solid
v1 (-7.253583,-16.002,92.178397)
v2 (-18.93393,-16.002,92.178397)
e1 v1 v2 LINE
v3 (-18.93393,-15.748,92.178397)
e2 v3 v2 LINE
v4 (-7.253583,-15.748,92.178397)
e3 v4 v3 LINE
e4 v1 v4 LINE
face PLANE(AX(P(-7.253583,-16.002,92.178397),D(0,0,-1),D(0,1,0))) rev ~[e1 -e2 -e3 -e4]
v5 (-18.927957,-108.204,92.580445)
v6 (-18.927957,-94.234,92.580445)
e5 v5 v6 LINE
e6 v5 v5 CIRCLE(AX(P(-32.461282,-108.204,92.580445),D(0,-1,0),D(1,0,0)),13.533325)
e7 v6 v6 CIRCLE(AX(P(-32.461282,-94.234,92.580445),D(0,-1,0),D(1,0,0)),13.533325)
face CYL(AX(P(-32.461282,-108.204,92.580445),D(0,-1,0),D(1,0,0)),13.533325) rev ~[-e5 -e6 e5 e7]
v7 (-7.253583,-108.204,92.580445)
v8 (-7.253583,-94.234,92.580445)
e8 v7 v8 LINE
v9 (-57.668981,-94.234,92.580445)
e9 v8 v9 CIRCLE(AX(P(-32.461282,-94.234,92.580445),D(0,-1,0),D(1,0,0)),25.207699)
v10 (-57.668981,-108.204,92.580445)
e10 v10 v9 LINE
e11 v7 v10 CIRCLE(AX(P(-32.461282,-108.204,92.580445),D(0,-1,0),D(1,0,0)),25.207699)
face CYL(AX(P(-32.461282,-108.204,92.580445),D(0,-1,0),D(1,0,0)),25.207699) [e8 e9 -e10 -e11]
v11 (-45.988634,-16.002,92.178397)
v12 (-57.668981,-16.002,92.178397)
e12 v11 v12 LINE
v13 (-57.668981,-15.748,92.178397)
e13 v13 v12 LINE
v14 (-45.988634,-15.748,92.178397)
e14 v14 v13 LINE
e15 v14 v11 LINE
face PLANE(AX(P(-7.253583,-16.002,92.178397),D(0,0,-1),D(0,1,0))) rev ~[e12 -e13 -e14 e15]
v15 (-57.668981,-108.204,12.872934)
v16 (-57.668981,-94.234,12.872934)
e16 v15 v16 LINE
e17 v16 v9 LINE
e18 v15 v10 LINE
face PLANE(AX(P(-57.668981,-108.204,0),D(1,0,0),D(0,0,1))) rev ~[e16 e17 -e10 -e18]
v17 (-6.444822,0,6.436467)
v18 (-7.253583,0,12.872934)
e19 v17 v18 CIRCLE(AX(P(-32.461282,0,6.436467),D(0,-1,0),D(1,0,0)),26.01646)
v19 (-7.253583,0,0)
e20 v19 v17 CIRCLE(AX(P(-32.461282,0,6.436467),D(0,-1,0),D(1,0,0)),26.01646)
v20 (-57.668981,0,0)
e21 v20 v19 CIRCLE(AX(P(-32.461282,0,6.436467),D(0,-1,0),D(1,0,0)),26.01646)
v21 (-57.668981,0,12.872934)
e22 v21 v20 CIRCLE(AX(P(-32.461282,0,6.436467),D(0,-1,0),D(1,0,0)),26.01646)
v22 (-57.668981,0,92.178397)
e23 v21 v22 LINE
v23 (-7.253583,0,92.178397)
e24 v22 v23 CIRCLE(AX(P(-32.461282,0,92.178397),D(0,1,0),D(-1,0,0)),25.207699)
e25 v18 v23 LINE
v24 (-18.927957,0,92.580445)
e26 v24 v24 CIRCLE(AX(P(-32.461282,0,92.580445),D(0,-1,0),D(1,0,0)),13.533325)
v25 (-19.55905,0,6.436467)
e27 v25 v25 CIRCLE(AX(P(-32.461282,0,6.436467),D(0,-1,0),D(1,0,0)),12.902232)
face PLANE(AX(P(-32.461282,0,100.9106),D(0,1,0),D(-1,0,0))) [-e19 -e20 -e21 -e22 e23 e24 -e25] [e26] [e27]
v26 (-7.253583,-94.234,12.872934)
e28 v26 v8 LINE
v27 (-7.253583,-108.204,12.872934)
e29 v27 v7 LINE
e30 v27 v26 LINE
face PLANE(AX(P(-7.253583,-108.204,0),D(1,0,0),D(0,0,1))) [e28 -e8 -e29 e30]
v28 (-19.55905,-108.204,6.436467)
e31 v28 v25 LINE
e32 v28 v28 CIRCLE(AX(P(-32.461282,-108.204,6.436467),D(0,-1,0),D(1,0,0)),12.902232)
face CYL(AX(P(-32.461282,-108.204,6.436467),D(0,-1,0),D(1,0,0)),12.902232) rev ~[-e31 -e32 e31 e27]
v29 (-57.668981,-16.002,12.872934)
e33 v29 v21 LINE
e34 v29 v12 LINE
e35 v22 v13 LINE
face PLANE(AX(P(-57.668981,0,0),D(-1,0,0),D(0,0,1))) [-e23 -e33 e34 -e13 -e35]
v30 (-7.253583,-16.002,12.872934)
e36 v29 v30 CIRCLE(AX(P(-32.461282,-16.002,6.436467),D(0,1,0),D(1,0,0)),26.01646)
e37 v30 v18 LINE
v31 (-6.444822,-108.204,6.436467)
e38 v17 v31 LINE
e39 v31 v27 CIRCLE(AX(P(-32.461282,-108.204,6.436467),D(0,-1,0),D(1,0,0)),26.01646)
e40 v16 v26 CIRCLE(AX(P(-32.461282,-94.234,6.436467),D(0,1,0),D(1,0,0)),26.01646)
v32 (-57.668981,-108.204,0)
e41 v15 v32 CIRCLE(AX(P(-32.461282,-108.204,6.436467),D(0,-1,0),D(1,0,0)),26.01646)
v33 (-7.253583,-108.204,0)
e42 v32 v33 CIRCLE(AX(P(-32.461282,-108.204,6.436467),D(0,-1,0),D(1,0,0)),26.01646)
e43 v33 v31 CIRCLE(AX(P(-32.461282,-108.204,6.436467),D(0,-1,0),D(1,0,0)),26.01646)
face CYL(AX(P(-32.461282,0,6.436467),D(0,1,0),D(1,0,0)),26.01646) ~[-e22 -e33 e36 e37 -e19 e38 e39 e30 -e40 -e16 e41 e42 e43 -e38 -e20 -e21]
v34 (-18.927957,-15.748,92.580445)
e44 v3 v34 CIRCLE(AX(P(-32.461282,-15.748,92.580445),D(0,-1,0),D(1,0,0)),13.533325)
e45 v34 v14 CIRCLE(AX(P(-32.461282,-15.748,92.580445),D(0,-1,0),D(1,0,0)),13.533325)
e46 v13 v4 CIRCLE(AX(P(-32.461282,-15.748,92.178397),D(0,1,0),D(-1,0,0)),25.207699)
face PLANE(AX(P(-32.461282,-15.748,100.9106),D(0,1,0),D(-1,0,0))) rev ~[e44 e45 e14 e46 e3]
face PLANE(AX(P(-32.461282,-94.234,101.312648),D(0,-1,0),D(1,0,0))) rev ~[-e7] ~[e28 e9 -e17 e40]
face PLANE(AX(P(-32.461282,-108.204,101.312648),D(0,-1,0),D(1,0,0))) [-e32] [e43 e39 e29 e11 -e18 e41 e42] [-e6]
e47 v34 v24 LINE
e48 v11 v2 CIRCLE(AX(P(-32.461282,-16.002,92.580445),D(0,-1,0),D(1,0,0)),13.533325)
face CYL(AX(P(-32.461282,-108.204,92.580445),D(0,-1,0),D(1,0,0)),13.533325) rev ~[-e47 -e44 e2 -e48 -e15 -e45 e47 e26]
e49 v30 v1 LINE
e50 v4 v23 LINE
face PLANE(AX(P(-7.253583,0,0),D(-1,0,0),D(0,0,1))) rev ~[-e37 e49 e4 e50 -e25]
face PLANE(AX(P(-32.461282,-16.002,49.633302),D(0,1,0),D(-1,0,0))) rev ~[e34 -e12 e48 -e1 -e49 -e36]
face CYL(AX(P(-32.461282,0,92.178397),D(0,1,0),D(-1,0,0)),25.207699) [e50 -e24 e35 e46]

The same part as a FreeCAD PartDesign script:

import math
import FreeCAD as App
import Part
import Sketcher
from FreeCAD import Vector
Q = App.Units.Quantity

doc = App.newDocument("Part")
body = doc.addObject("PartDesign::Body", "Body")

# Sketch on XZ plane
sketch1 = body.newObject("Sketcher::SketchObject", "Sketch")
sketch1.AttachmentSupport = (doc.getObject("XZ_Plane"), [""])
sketch1.MapMode = "FlatFace"
sketch1.addGeometry(Part.Circle(Vector(-32, 6, 0), Vector(0, 0, 1), 26), False)
sketch1.addConstraint([
    Sketcher.Constraint("Diameter", 0, 52.03292),
    Sketcher.Constraint("DistanceX", 0, 3, -1, 1, 32.461282),
    Sketcher.Constraint("DistanceY", -1, 1, 0, 3, 6.436467),
])
pad1 = body.newObject("PartDesign::Pad", "Pad")
pad1.Profile = sketch1
pad1.Length = Q("4.26 in")

# Sketch on XZ plane
sketch2 = body.newObject("Sketcher::SketchObject", "Sketch001")
sketch2.AttachmentSupport = (doc.getObject("XZ_Plane"), [""])
sketch2.MapMode = "FlatFace"
sketch2.AttachmentOffset = App.Placement(Vector(0, 0, 4.26 * 25.4), App.Rotation())
sketch2.addGeometry([
    Part.LineSegment(Vector(-58, 93, 0), Vector(-58, 0, 0)),
    Part.LineSegment(Vector(-58, 0, 0), Vector(-7, 0, 0)),
    Part.LineSegment(Vector(-7, 0, 0), Vector(-7, 93, 0)),
    Part.LineSegment(Vector(-7, 93, 0), Vector(-58, 93, 0)),
], False)
sketch2.addConstraint([
    Sketcher.Constraint("Coincident", 0, 2, 1, 1),
    Sketcher.Constraint("Coincident", 1, 2, 2, 1),
    Sketcher.Constraint("Coincident", 2, 2, 3, 1),
    Sketcher.Constraint("Coincident", 3, 2, 0, 1),
    Sketcher.Constraint("Vertical", 0),
    Sketcher.Constraint("Horizontal", 1),
    Sketcher.Constraint("Vertical", 2),
    Sketcher.Constraint("Horizontal", 3),
    Sketcher.Constraint("PointOnObject", 0, 2, -1),
    Sketcher.Constraint("DistanceX", 1, 1, 1, 2, 50.415398),
    Sketcher.Constraint("DistanceY", 0, 2, 0, 1, 92.580445),
    Sketcher.Constraint("DistanceX", 0, 2, -1, 1, 57.668981),
])
pad2 = body.newObject("PartDesign::Pad", "Pad001")
pad2.Profile = sketch2
pad2.Length = Q("0.55 in")
pad2.Reversed = True

# Sketch on XZ plane
sketch3 = body.newObject("Sketcher::SketchObject", "Sketch002")
sketch3.AttachmentSupport = (doc.getObject("XZ_Plane"), [""])
sketch3.MapMode = "FlatFace"
sketch3.addGeometry([
    Part.LineSegment(Vector(-7, 99, 0), Vector(-7, 0, 0)),
    Part.LineSegment(Vector(-7, 0, 0), Vector(-58, 0, 0)),
    Part.LineSegment(Vector(-58, 0, 0), Vector(-58, 99, 0)),
    Part.LineSegment(Vector(-58, 99, 0), Vector(-7, 99, 0)),
], False)
sketch3.addConstraint([
    Sketcher.Constraint("Coincident", 0, 2, 1, 1),
    Sketcher.Constraint("Coincident", 1, 2, 2, 1),
    Sketcher.Constraint("Coincident", 2, 2, 3, 1),
    Sketcher.Constraint("Coincident", 3, 2, 0, 1),
    Sketcher.Constraint("Vertical", 0),
    Sketcher.Constraint("Horizontal", 1),
    Sketcher.Constraint("Vertical", 2),
    Sketcher.Constraint("Horizontal", 3),
    Sketcher.Constraint("PointOnObject", 0, 2, -1),
    Sketcher.Constraint("DistanceX", 1, 2, 1, 1, 50.415398),
    Sketcher.Constraint("DistanceY", 0, 2, 0, 1, 99.266604),
    Sketcher.Constraint("DistanceX", 1, 2, -1, 1, 57.668981),
])
pad3 = body.newObject("PartDesign::Pad", "Pad002")
pad3.Profile = sketch3
pad3.Length = Q("0.63 in")

# Sketch on YZ plane
sketch4 = body.newObject("Sketcher::SketchObject", "Sketch003")
sketch4.AttachmentSupport = (doc.getObject("YZ_Plane"), [""])
sketch4.MapMode = "FlatFace"
sketch4.AttachmentOffset = App.Placement(Vector(0, 0, -7.253583), App.Rotation())
sketch4.addGeometry([
    Part.LineSegment(Vector(-16, 99, 0), Vector(-16, 92, 0)),
    Part.LineSegment(Vector(-16, 92, 0), Vector(0, 92, 0)),
    Part.LineSegment(Vector(0, 92, 0), Vector(0, 99, 0)),
    Part.LineSegment(Vector(0, 99, 0), Vector(-16, 99, 0)),
], False)
sketch4.addConstraint([
    Sketcher.Constraint("Coincident", 0, 2, 1, 1),
    Sketcher.Constraint("Coincident", 1, 2, 2, 1),
    Sketcher.Constraint("Coincident", 2, 2, 3, 1),
    Sketcher.Constraint("Coincident", 3, 2, 0, 1),
    Sketcher.Constraint("Vertical", 0),
    Sketcher.Constraint("Horizontal", 1),
    Sketcher.Constraint("Vertical", 2),
    Sketcher.Constraint("Horizontal", 3),
    Sketcher.Constraint("PointOnObject", 1, 2, -2),
    Sketcher.Constraint("DistanceX", 1, 1, 1, 2, Q("0.63 in")),
    Sketcher.Constraint("DistanceY", 0, 2, 0, 1, 7.088207),
    Sketcher.Constraint("DistanceY", -1, 1, 0, 2, 92.178397),
])
pocket1 = body.newObject("PartDesign::Pocket", "Pocket")
pocket1.Profile = sketch4
pocket1.Length = Q("2.52 in")

# Sketch on XZ plane
sketch5 = body.newObject("Sketcher::SketchObject", "Sketch004")
sketch5.AttachmentSupport = (doc.getObject("XZ_Plane"), [""])
sketch5.MapMode = "FlatFace"
sketch5.AttachmentOffset = App.Placement(Vector(0, 0, 4.26 * 25.4), App.Rotation())
sketch5.addGeometry(Part.Circle(Vector(-32, 6, 0), Vector(0, 0, 1), 13), False)
sketch5.addConstraint([
    Sketcher.Constraint("Diameter", 0, 25.804463),
    Sketcher.Constraint("DistanceX", 0, 3, -1, 1, 32.461282),
    Sketcher.Constraint("DistanceY", -1, 1, 0, 3, 6.436467),
])
pocket2 = body.newObject("PartDesign::Pocket", "Pocket001")
pocket2.Profile = sketch5
pocket2.Length = Q("5.99 in")

# Sketch on XZ plane
sketch6 = body.newObject("Sketcher::SketchObject", "Sketch005")
sketch6.AttachmentSupport = (doc.getObject("XZ_Plane"), [""])
sketch6.MapMode = "FlatFace"
sketch6.addGeometry([
    Part.LineSegment(Vector(-7, 92, 0), Vector(-58, 92, 0)),
    Part.ArcOfCircle(Part.Circle(Vector(-32, 92, 0), Vector(0, 0, 1), 25), math.radians(0), math.radians(180)),
], False)
sketch6.addConstraint([
    Sketcher.Constraint("Coincident", 0, 1, 1, 1),
    Sketcher.Constraint("Coincident", 1, 2, 0, 2),
    Sketcher.Constraint("Horizontal", 0),
    Sketcher.Constraint("Horizontal", 1, 3, 0, 1),
    Sketcher.Constraint("Radius", 1, 25.207699),
    Sketcher.Constraint("DistanceX", 1, 3, -1, 1, 32.461282),
    Sketcher.Constraint("DistanceY", -1, 1, 1, 3, 92.178397),
])
pad4 = body.newObject("PartDesign::Pad", "Pad003")
pad4.Profile = sketch6
pad4.Length = Q("0.62 in")

# Sketch on XZ plane
sketch7 = body.newObject("Sketcher::SketchObject", "Sketch006")
sketch7.AttachmentSupport = (doc.getObject("XZ_Plane"), [""])
sketch7.MapMode = "FlatFace"
sketch7.AttachmentOffset = App.Placement(Vector(0, 0, 4.26 * 25.4), App.Rotation())
sketch7.addGeometry([
    Part.LineSegment(Vector(-58, 93, 0), Vector(-7, 93, 0)),
    Part.ArcOfCircle(Part.Circle(Vector(-32, 93, 0), Vector(0, 0, 1), 25), math.radians(0), math.radians(180)),
], False)
sketch7.addConstraint([
    Sketcher.Constraint("Coincident", 0, 1, 1, 2),
    Sketcher.Constraint("Coincident", 1, 1, 0, 2),
    Sketcher.Constraint("Horizontal", 0),
    Sketcher.Constraint("Horizontal", 1, 3, 0, 1),
    Sketcher.Constraint("Radius", 1, 25.207699),
    Sketcher.Constraint("DistanceX", 1, 3, -1, 1, 32.461282),
    Sketcher.Constraint("DistanceY", -1, 1, 1, 3, 92.580445),
])
pad5 = body.newObject("PartDesign::Pad", "Pad004")
pad5.Profile = sketch7
pad5.Length = Q("0.55 in")
pad5.Reversed = True

# Sketch on XZ plane
sketch8 = body.newObject("Sketcher::SketchObject", "Sketch007")
sketch8.AttachmentSupport = (doc.getObject("XZ_Plane"), [""])
sketch8.MapMode = "FlatFace"
sketch8.AttachmentOffset = App.Placement(Vector(0, 0, 4.26 * 25.4), App.Rotation())
sketch8.addGeometry(Part.Circle(Vector(-32, 93, 0), Vector(0, 0, 1), 14), False)
sketch8.addConstraint([
    Sketcher.Constraint("Diameter", 0, 27.06665),
    Sketcher.Constraint("DistanceX", 0, 3, -1, 1, 32.461282),
    Sketcher.Constraint("DistanceY", -1, 1, 0, 3, 92.580445),
])
pocket3 = body.newObject("PartDesign::Pocket", "Pocket002")
pocket3.Profile = sketch8
pocket3.Length = Q("9.38 in")

doc.recompute()
